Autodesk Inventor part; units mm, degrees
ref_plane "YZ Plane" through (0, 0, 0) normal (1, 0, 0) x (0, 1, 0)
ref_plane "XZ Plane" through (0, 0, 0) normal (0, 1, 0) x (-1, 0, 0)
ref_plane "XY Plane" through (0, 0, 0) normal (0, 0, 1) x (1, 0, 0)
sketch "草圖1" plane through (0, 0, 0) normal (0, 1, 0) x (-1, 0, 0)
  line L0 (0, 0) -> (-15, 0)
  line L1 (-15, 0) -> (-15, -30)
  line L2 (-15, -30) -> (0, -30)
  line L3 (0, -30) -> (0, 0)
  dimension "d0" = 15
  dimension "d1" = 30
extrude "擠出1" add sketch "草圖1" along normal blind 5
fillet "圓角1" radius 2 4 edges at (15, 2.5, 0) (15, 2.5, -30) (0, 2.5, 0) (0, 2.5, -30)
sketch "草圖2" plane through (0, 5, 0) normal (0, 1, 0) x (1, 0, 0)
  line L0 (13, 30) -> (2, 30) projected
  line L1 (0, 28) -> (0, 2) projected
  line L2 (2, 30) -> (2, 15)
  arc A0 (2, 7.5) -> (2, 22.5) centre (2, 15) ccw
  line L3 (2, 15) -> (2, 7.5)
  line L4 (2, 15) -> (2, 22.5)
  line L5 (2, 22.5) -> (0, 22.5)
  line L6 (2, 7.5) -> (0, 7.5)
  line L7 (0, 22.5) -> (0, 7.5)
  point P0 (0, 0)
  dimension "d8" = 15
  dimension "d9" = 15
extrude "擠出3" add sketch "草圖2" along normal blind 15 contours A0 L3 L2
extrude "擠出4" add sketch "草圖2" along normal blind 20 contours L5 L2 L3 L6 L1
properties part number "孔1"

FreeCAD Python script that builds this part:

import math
import FreeCAD as App
import Part
import Sketcher

V = App.Vector
Q = App.Units.Quantity


def edges_at(feature, points):
    """Names of the edges that pass closest to the given points."""
    edges = feature.Shape.Edges
    near = lambda p: min(range(len(edges)), key=lambda i: edges[i].distToShape(Part.Vertex(*p))[0])
    return sorted({f"Edge{near(p) + 1}" for p in points})

doc = App.newDocument("Part")
body = doc.addObject("PartDesign::Body", "Body")

# Sketch on XZ plane
sketch1 = body.newObject("Sketcher::SketchObject", "Sketch")
sketch1.AttachmentSupport = (doc.getObject("XZ_Plane"), [""])
sketch1.MapMode = "FlatFace"
sketch1.addGeometry(Part.LineSegment(V(0, -30, 0), V(0, 0, 0)), False)
sketch1.addGeometry(Part.LineSegment(V(0, 0, 0), V(15, 0, 0)), False)
sketch1.addGeometry(Part.LineSegment(V(15, 0, 0), V(15, -30, 0)), False)
sketch1.addGeometry(Part.LineSegment(V(15, -30, 0), V(0, -30, 0)), False)
sketch1.addConstraint(Sketcher.Constraint("Coincident", 0, 2, 1, 1))
sketch1.addConstraint(Sketcher.Constraint("Coincident", 1, 2, 2, 1))
sketch1.addConstraint(Sketcher.Constraint("Coincident", 2, 2, 3, 1))
sketch1.addConstraint(Sketcher.Constraint("Coincident", 3, 2, 0, 1))
sketch1.addConstraint(Sketcher.Constraint("Vertical", 0))
sketch1.addConstraint(Sketcher.Constraint("Horizontal", 1))
sketch1.addConstraint(Sketcher.Constraint("Vertical", 2))
sketch1.addConstraint(Sketcher.Constraint("Horizontal", 3))
sketch1.addConstraint(Sketcher.Constraint("Coincident", 0, 2, -1, 1))
sketch1.addConstraint(Sketcher.Constraint("DistanceX", 1, 1, 1, 2, Q("15 mm")))
sketch1.addConstraint(Sketcher.Constraint("DistanceY", 0, 1, 0, 2, Q("30 mm")))
pad1 = body.newObject("PartDesign::Pad", "Pad")
pad1.Profile = sketch1
pad1.Length = 5
pad1.Reversed = True
doc.recompute()

fillet = body.newObject("PartDesign::Fillet", "Fillet")
fillet.Base = (pad1, edges_at(pad1, [
    (15, 2.5, 0),
    (15, 2.5, -30),
    (0, 2.5, 0),
    (0, 2.5, -30),
]))
fillet.Radius = 2

# Sketch on XZ plane
sketch2 = body.newObject("Sketcher::SketchObject", "Sketch001")
sketch2.AttachmentSupport = (doc.getObject("XZ_Plane"), [""])
sketch2.MapMode = "FlatFace"
sketch2.AttachmentOffset = App.Placement(V(0, 0, -5), App.Rotation())
sketch2.addGeometry(Part.ArcOfCircle(Part.Circle(V(2, -15, 0), V(0, 0, 1), 8), math.radians(-90), math.radians(90)), False)
sketch2.addGeometry(Part.LineSegment(V(2, -22, 0), V(2, -8, 0)), False)
sketch2.addConstraint(Sketcher.Constraint("Coincident", 0, 1, 1, 1))
sketch2.addConstraint(Sketcher.Constraint("Coincident", 1, 2, 0, 2))
sketch2.addConstraint(Sketcher.Constraint("Vertical", 1))
sketch2.addConstraint(Sketcher.Constraint("Radius", 0, Q("7.5 mm")))
sketch2.addConstraint(Sketcher.Constraint("DistanceY", 0, 3, -1, 1, Q("15 mm")))
sketch2.addConstraint(Sketcher.Constraint("DistanceX", -1, 1, 0, 3, Q("2 mm")))
sketch2.addConstraint(Sketcher.Constraint("DistanceX", -1, 1, 0, 1, Q("2 mm")))
pad2 = body.newObject("PartDesign::Pad", "Pad001")
pad2.Profile = sketch2
pad2.Length = 15
pad2.Reversed = True

# Sketch on XZ plane
sketch3 = body.newObject("Sketcher::SketchObject", "Sketch002")
sketch3.AttachmentSupport = (doc.getObject("XZ_Plane"), [""])
sketch3.MapMode = "FlatFace"
sketch3.AttachmentOffset = App.Placement(V(0, 0, -5), App.Rotation())
sketch3.addGeometry(Part.LineSegment(V(2, -22.5, 0), V(0, -22.5, 0)), False)
sketch3.addGeometry(Part.LineSegment(V(0, -22.5, 0), V(0, -7.5, 0)), False)
sketch3.addGeometry(Part.LineSegment(V(0, -7.5, 0), V(2, -7.5, 0)), False)
sketch3.addGeometry(Part.LineSegment(V(2, -7.5, 0), V(2, -22.5, 0)), False)
sketch3.addConstraint(Sketcher.Constraint("Coincident", 0, 2, 1, 1))
sketch3.addConstraint(Sketcher.Constraint("Coincident", 1, 2, 2, 1))
sketch3.addConstraint(Sketcher.Constraint("Coincident", 2, 2, 3, 1))
sketch3.addConstraint(Sketcher.Constraint("Coincident", 3, 2, 0, 1))
sketch3.addConstraint(Sketcher.Constraint("Horizontal", 0))
sketch3.addConstraint(Sketcher.Constraint("Vertical", 1))
sketch3.addConstraint(Sketcher.Constraint("Horizontal", 2))
sketch3.addConstraint(Sketcher.Constraint("Vertical", 3))
sketch3.addConstraint(Sketcher.Constraint("PointOnObject", 0, 2, -2))
sketch3.addConstraint(Sketcher.Constraint("DistanceY", 1, 1, 1, 2, Q("15 mm")))
sketch3.addConstraint(Sketcher.Constraint("DistanceX", 0, 2, 0, 1, Q("2 mm")))
sketch3.addConstraint(Sketcher.Constraint("DistanceY", 0, 2, -1, 1, Q("22.5 mm")))
pad3 = body.newObject("PartDesign::Pad", "Pad002")
pad3.Profile = sketch3
pad3.Length = 20
pad3.Reversed = True

doc.recompute()
